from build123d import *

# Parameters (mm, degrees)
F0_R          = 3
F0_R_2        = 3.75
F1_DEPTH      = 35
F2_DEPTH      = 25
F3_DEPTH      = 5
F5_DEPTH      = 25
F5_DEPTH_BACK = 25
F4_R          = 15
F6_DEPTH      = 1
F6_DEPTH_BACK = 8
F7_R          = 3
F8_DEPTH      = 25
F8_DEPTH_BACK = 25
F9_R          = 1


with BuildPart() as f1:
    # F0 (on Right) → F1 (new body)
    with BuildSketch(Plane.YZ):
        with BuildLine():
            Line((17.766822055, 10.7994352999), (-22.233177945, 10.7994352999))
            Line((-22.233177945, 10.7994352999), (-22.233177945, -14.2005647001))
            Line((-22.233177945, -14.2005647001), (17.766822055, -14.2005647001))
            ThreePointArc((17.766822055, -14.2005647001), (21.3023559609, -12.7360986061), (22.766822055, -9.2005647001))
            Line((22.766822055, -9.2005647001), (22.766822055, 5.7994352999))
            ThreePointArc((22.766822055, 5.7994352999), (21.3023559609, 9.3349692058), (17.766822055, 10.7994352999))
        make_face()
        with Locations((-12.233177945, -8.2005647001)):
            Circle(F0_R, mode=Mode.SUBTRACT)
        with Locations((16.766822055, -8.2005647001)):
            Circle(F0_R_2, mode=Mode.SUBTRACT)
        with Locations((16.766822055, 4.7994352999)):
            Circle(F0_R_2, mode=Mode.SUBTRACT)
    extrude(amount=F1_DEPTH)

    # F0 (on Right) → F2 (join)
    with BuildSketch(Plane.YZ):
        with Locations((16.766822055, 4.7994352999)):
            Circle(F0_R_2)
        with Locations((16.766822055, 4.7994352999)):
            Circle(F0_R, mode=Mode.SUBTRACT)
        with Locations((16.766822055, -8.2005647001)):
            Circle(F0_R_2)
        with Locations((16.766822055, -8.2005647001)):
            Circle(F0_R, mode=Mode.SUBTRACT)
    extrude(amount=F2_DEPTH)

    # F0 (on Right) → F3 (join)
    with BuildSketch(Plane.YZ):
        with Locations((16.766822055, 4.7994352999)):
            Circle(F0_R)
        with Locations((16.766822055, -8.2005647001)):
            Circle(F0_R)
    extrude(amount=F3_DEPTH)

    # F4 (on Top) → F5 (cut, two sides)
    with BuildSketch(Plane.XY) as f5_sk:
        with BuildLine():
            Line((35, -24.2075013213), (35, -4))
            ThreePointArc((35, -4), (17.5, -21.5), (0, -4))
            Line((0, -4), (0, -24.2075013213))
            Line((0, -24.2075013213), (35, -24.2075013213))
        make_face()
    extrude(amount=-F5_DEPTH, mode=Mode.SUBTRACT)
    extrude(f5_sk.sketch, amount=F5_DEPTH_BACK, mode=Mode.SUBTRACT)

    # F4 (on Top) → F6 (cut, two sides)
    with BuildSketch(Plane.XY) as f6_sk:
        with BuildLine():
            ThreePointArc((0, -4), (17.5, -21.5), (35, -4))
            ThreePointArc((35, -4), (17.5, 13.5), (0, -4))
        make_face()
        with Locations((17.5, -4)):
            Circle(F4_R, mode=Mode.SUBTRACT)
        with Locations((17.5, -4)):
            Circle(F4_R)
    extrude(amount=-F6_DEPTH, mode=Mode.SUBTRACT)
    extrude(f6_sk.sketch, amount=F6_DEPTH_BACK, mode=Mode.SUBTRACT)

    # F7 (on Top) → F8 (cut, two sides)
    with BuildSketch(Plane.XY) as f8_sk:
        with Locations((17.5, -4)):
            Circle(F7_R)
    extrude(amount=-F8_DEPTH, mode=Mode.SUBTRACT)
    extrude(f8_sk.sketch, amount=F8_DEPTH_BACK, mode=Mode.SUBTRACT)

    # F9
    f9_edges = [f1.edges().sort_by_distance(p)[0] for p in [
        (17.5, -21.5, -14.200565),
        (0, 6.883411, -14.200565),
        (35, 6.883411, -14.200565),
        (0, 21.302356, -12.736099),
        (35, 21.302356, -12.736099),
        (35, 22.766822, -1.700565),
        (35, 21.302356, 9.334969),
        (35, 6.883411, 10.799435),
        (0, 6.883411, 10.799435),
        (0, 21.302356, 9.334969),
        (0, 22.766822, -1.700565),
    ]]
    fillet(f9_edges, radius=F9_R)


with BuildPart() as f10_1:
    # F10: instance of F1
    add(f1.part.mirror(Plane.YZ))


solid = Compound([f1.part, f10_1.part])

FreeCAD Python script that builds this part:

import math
import FreeCAD as App
import Part
import Sketcher
Q = App.Units.Quantity


def edges_at(feature, points):
    """Names of the edges that pass closest to the given points."""
    edges = feature.Shape.Edges
    near = lambda p: min(range(len(edges)), key=lambda i: edges[i].distToShape(Part.Vertex(*p))[0])
    return sorted({f"Edge{near(p) + 1}" for p in points})

doc = App.newDocument("Part")
body = doc.addObject("PartDesign::Body", "Body")

# Sketch on YZ plane
sketch1 = body.newObject("Sketcher::SketchObject", "Sketch")
sketch1.AttachmentSupport = (doc.getObject("YZ_Plane"), [""])
sketch1.MapMode = "FlatFace"
sketch1.addGeometry([
    Part.LineSegment(App.Vector(17.8, 10.8, 0), App.Vector(-22.2, 10.8, 0)),  # 0
    Part.LineSegment(App.Vector(-22.2, 10.8, 0), App.Vector(-22.2, -14.2, 0)),  # 1
    Part.LineSegment(App.Vector(-22.2, -14.2, 0), App.Vector(17.8, -14.2, 0)),  # 2
    Part.ArcOfCircle(Part.Circle(App.Vector(17.8, -9.2, 0), App.Vector(0, 0, 1), 5), math.radians(-90), math.radians(0)),  # 3
    Part.LineSegment(App.Vector(22.8, -9.2, 0), App.Vector(22.8, 5.8, 0)),  # 4
    Part.ArcOfCircle(Part.Circle(App.Vector(17.8, 5.8, 0), App.Vector(0, 0, 1), 5), math.radians(0), math.radians(90)),  # 5
    Part.Circle(App.Vector(-12.2, -8.2, 0), App.Vector(0, 0, 1), 3),  # 6
    Part.Circle(App.Vector(16.8, -8.2, 0), App.Vector(0, 0, 1), 3.8),  # 7
    Part.Circle(App.Vector(16.8, 4.8, 0), App.Vector(0, 0, 1), 3.8),  # 8
], False)
sketch1.addConstraint([
    Sketcher.Constraint("Coincident", 0, 2, 1, 1),
    Sketcher.Constraint("Coincident", 1, 2, 2, 1),
    Sketcher.Constraint("Tangent", 2, 2, 3, 1),
    Sketcher.Constraint("Tangent", 3, 2, 4, 1),
    Sketcher.Constraint("Tangent", 4, 2, 5, 1),
    Sketcher.Constraint("Tangent", 5, 2, 0, 1),
    Sketcher.Constraint("Horizontal", 0),
    Sketcher.Constraint("Vertical", 1),
    Sketcher.Constraint("Horizontal", 2),
    Sketcher.Constraint("Vertical", 4),
    Sketcher.Constraint("Equal", 3, 5),
    Sketcher.Constraint("Equal", 7, 8),
    Sketcher.Constraint("Horizontal", 6, 3, 7, 3),
    Sketcher.Constraint("Vertical", 7, 3, 8, 3),
    Sketcher.Constraint("Diameter", 6, Q("6 mm")),
    Sketcher.Constraint("Radius", 3, Q("5 mm")),
    Sketcher.Constraint("Diameter", 7, Q("7.5 mm")),
    Sketcher.Constraint("DistanceX", 0, 2, 0, 1, Q("40 mm")),
    Sketcher.Constraint("DistanceY", 1, 2, 1, 1, Q("25 mm")),
    Sketcher.Constraint("DistanceX", 6, 3, 3, 3, Q("30 mm")),
    Sketcher.Constraint("DistanceY", 3, 3, 6, 3, Q("1 mm")),
    Sketcher.Constraint("DistanceX", 7, 3, 3, 3, Q("1 mm")),
    Sketcher.Constraint("DistanceY", 8, 3, 5, 3, Q("1 mm")),
    Sketcher.Constraint("DistanceX", -1, 1, 3, 3, Q("17.766822 mm")),
    Sketcher.Constraint("DistanceY", 3, 3, -1, 1, Q("9.200565 mm")),
])
pad1 = body.newObject("PartDesign::Pad", "Pad")
pad1.Profile = sketch1
pad1.Length = 35

# Sketch on YZ plane
sketch2 = body.newObject("Sketcher::SketchObject", "Sketch001")
sketch2.AttachmentSupport = (doc.getObject("YZ_Plane"), [""])
sketch2.MapMode = "FlatFace"
sketch2.addGeometry([
    Part.Circle(App.Vector(16.8, 4.8, 0), App.Vector(0, 0, 1), 3.8),
    Part.Circle(App.Vector(16.8, 4.8, 0), App.Vector(0, 0, 1), 3),
    Part.Circle(App.Vector(16.8, -8.2, 0), App.Vector(0, 0, 1), 3.8),
    Part.Circle(App.Vector(16.8, -8.2, 0), App.Vector(0, 0, 1), 3),
], False)
sketch2.addConstraint([
    Sketcher.Constraint("Coincident", 1, 3, 0, 3),
    Sketcher.Constraint("Coincident", 3, 3, 2, 3),
    Sketcher.Constraint("Equal", 0, 2),
    Sketcher.Constraint("Equal", 1, 3),
    Sketcher.Constraint("Vertical", 1, 3, 2, 3),
    Sketcher.Constraint("Diameter", 1, Q("6 mm")),
    Sketcher.Constraint("Diameter", 0, Q("7.5 mm")),
    Sketcher.Constraint("DistanceY", 2, 3, 0, 3, Q("13 mm")),
    Sketcher.Constraint("DistanceX", -1, 1, 0, 3, Q("16.766822 mm")),
    Sketcher.Constraint("DistanceY", -1, 1, 0, 3, Q("4.799435 mm")),
])
pad2 = body.newObject("PartDesign::Pad", "Pad001")
pad2.Profile = sketch2
pad2.Length = 25

# Sketch on YZ plane
sketch3 = body.newObject("Sketcher::SketchObject", "Sketch002")
sketch3.AttachmentSupport = (doc.getObject("YZ_Plane"), [""])
sketch3.MapMode = "FlatFace"
sketch3.addGeometry([
    Part.Circle(App.Vector(16.8, 4.8, 0), App.Vector(0, 0, 1), 3),
    Part.Circle(App.Vector(16.8, -8.2, 0), App.Vector(0, 0, 1), 3),
], False)
sketch3.addConstraint([
    Sketcher.Constraint("Equal", 0, 1),
    Sketcher.Constraint("Vertical", 0, 3, 1, 3),
    Sketcher.Constraint("Diameter", 0, Q("6 mm")),
    Sketcher.Constraint("DistanceY", 1, 3, 0, 3, Q("13 mm")),
    Sketcher.Constraint("DistanceX", -1, 1, 0, 3, Q("16.766822 mm")),
    Sketcher.Constraint("DistanceY", -1, 1, 0, 3, Q("4.799435 mm")),
])
pad3 = body.newObject("PartDesign::Pad", "Pad002")
pad3.Profile = sketch3
pad3.Length = 5

# Sketch on XY plane
sketch4 = body.newObject("Sketcher::SketchObject", "Sketch003")
sketch4.AttachmentSupport = (doc.getObject("XY_Plane"), [""])
sketch4.MapMode = "FlatFace"
sketch4.addGeometry([
    Part.LineSegment(App.Vector(35, -24, 0), App.Vector(35, -4, 0)),
    Part.ArcOfCircle(Part.Circle(App.Vector(18, -4, 0), App.Vector(0, 0, 1), 18), math.radians(180), math.radians(360)),
    Part.LineSegment(App.Vector(0, -4, 0), App.Vector(0, -24, 0)),
    Part.LineSegment(App.Vector(0, -24, 0), App.Vector(35, -24, 0)),
], False)
sketch4.addConstraint([
    Sketcher.Constraint("Tangent", 0, 2, 1, 2),
    Sketcher.Constraint("Tangent", 1, 1, 2, 1),
    Sketcher.Constraint("Coincident", 2, 2, 3, 1),
    Sketcher.Constraint("Coincident", 3, 2, 0, 1),
    Sketcher.Constraint("Vertical", 0),
    Sketcher.Constraint("Vertical", 2),
    Sketcher.Constraint("Horizontal", 3),
    Sketcher.Constraint("PointOnObject", 1, 1, -2),
    Sketcher.Constraint("Radius", 1, Q("17.5 mm")),
    Sketcher.Constraint("DistanceY", 1, 3, -1, 1, Q("4 mm")),
    Sketcher.Constraint("DistanceY", 0, 1, 0, 2, Q("20.207501 mm")),
])
pocket1 = body.newObject("PartDesign::Pocket", "Pocket")
pocket1.Profile = sketch4
pocket1.Type = "ThroughAll"
pocket1.Midplane = True

# Sketch on XY plane
sketch5 = body.newObject("Sketcher::SketchObject", "Sketch004")
sketch5.AttachmentSupport = (doc.getObject("XY_Plane"), [""])
sketch5.MapMode = "FlatFace"
sketch5.addGeometry(Part.Circle(App.Vector(18, -4, 0), App.Vector(0, 0, 1), 18), False)
sketch5.addConstraint([
    Sketcher.Constraint("Diameter", 0, Q("35 mm")),
    Sketcher.Constraint("DistanceY", 0, 3, -1, 1, Q("4 mm")),
    Sketcher.Constraint("DistanceX", -1, 1, 0, 3, Q("17.5 mm")),
])
pocket2 = body.newObject("PartDesign::Pocket", "Pocket001")
pocket2.Profile = sketch5
pocket2.Type = "TwoLengths"
pocket2.Length = 1
pocket2.Length2 = 8

# Sketch on XY plane
sketch6 = body.newObject("Sketcher::SketchObject", "Sketch005")
sketch6.AttachmentSupport = (doc.getObject("XY_Plane"), [""])
sketch6.MapMode = "FlatFace"
sketch6.addGeometry(Part.Circle(App.Vector(17.5, -4, 0), App.Vector(0, 0, 1), 3), False)
sketch6.addConstraint([
    Sketcher.Constraint("Diameter", 0, Q("6 mm")),
    Sketcher.Constraint("DistanceY", 0, 3, -1, 1, Q("4 mm")),
    Sketcher.Constraint("DistanceX", -1, 1, 0, 3, Q("17.5 mm")),
])
pocket3 = body.newObject("PartDesign::Pocket", "Pocket002")
pocket3.Profile = sketch6
pocket3.Type = "ThroughAll"
pocket3.Midplane = True
doc.recompute()

fillet = body.newObject("PartDesign::Fillet", "Fillet")
fillet.Base = (pocket3, edges_at(pocket3, [
    (17.5, -21.5, -14.201),
    (0, 6.883, -14.201),
    (35, 6.883, -14.201),
    (0, 21.302, -12.736),
    (35, 21.302, -12.736),
    (35, 22.767, -1.701),
    (35, 21.302, 9.335),
    (35, 6.883, 10.799),
    (0, 6.883, 10.799),
    (0, 21.302, 9.335),
    (0, 22.767, -1.701),
]))
fillet.Radius = 1
body2 = doc.addObject("PartDesign::Body", "Body001")
doc.recompute()

mirroring = doc.addObject("Part::Mirroring", "Mirroring")
mirroring.Source = body
mirroring.Base = App.Vector(0, 0, 0)
mirroring.Normal = App.Vector(1, 0, 0)
body2.BaseFeature = mirroring
doc.recompute()
mirroring.Visibility = False

doc.recompute()
